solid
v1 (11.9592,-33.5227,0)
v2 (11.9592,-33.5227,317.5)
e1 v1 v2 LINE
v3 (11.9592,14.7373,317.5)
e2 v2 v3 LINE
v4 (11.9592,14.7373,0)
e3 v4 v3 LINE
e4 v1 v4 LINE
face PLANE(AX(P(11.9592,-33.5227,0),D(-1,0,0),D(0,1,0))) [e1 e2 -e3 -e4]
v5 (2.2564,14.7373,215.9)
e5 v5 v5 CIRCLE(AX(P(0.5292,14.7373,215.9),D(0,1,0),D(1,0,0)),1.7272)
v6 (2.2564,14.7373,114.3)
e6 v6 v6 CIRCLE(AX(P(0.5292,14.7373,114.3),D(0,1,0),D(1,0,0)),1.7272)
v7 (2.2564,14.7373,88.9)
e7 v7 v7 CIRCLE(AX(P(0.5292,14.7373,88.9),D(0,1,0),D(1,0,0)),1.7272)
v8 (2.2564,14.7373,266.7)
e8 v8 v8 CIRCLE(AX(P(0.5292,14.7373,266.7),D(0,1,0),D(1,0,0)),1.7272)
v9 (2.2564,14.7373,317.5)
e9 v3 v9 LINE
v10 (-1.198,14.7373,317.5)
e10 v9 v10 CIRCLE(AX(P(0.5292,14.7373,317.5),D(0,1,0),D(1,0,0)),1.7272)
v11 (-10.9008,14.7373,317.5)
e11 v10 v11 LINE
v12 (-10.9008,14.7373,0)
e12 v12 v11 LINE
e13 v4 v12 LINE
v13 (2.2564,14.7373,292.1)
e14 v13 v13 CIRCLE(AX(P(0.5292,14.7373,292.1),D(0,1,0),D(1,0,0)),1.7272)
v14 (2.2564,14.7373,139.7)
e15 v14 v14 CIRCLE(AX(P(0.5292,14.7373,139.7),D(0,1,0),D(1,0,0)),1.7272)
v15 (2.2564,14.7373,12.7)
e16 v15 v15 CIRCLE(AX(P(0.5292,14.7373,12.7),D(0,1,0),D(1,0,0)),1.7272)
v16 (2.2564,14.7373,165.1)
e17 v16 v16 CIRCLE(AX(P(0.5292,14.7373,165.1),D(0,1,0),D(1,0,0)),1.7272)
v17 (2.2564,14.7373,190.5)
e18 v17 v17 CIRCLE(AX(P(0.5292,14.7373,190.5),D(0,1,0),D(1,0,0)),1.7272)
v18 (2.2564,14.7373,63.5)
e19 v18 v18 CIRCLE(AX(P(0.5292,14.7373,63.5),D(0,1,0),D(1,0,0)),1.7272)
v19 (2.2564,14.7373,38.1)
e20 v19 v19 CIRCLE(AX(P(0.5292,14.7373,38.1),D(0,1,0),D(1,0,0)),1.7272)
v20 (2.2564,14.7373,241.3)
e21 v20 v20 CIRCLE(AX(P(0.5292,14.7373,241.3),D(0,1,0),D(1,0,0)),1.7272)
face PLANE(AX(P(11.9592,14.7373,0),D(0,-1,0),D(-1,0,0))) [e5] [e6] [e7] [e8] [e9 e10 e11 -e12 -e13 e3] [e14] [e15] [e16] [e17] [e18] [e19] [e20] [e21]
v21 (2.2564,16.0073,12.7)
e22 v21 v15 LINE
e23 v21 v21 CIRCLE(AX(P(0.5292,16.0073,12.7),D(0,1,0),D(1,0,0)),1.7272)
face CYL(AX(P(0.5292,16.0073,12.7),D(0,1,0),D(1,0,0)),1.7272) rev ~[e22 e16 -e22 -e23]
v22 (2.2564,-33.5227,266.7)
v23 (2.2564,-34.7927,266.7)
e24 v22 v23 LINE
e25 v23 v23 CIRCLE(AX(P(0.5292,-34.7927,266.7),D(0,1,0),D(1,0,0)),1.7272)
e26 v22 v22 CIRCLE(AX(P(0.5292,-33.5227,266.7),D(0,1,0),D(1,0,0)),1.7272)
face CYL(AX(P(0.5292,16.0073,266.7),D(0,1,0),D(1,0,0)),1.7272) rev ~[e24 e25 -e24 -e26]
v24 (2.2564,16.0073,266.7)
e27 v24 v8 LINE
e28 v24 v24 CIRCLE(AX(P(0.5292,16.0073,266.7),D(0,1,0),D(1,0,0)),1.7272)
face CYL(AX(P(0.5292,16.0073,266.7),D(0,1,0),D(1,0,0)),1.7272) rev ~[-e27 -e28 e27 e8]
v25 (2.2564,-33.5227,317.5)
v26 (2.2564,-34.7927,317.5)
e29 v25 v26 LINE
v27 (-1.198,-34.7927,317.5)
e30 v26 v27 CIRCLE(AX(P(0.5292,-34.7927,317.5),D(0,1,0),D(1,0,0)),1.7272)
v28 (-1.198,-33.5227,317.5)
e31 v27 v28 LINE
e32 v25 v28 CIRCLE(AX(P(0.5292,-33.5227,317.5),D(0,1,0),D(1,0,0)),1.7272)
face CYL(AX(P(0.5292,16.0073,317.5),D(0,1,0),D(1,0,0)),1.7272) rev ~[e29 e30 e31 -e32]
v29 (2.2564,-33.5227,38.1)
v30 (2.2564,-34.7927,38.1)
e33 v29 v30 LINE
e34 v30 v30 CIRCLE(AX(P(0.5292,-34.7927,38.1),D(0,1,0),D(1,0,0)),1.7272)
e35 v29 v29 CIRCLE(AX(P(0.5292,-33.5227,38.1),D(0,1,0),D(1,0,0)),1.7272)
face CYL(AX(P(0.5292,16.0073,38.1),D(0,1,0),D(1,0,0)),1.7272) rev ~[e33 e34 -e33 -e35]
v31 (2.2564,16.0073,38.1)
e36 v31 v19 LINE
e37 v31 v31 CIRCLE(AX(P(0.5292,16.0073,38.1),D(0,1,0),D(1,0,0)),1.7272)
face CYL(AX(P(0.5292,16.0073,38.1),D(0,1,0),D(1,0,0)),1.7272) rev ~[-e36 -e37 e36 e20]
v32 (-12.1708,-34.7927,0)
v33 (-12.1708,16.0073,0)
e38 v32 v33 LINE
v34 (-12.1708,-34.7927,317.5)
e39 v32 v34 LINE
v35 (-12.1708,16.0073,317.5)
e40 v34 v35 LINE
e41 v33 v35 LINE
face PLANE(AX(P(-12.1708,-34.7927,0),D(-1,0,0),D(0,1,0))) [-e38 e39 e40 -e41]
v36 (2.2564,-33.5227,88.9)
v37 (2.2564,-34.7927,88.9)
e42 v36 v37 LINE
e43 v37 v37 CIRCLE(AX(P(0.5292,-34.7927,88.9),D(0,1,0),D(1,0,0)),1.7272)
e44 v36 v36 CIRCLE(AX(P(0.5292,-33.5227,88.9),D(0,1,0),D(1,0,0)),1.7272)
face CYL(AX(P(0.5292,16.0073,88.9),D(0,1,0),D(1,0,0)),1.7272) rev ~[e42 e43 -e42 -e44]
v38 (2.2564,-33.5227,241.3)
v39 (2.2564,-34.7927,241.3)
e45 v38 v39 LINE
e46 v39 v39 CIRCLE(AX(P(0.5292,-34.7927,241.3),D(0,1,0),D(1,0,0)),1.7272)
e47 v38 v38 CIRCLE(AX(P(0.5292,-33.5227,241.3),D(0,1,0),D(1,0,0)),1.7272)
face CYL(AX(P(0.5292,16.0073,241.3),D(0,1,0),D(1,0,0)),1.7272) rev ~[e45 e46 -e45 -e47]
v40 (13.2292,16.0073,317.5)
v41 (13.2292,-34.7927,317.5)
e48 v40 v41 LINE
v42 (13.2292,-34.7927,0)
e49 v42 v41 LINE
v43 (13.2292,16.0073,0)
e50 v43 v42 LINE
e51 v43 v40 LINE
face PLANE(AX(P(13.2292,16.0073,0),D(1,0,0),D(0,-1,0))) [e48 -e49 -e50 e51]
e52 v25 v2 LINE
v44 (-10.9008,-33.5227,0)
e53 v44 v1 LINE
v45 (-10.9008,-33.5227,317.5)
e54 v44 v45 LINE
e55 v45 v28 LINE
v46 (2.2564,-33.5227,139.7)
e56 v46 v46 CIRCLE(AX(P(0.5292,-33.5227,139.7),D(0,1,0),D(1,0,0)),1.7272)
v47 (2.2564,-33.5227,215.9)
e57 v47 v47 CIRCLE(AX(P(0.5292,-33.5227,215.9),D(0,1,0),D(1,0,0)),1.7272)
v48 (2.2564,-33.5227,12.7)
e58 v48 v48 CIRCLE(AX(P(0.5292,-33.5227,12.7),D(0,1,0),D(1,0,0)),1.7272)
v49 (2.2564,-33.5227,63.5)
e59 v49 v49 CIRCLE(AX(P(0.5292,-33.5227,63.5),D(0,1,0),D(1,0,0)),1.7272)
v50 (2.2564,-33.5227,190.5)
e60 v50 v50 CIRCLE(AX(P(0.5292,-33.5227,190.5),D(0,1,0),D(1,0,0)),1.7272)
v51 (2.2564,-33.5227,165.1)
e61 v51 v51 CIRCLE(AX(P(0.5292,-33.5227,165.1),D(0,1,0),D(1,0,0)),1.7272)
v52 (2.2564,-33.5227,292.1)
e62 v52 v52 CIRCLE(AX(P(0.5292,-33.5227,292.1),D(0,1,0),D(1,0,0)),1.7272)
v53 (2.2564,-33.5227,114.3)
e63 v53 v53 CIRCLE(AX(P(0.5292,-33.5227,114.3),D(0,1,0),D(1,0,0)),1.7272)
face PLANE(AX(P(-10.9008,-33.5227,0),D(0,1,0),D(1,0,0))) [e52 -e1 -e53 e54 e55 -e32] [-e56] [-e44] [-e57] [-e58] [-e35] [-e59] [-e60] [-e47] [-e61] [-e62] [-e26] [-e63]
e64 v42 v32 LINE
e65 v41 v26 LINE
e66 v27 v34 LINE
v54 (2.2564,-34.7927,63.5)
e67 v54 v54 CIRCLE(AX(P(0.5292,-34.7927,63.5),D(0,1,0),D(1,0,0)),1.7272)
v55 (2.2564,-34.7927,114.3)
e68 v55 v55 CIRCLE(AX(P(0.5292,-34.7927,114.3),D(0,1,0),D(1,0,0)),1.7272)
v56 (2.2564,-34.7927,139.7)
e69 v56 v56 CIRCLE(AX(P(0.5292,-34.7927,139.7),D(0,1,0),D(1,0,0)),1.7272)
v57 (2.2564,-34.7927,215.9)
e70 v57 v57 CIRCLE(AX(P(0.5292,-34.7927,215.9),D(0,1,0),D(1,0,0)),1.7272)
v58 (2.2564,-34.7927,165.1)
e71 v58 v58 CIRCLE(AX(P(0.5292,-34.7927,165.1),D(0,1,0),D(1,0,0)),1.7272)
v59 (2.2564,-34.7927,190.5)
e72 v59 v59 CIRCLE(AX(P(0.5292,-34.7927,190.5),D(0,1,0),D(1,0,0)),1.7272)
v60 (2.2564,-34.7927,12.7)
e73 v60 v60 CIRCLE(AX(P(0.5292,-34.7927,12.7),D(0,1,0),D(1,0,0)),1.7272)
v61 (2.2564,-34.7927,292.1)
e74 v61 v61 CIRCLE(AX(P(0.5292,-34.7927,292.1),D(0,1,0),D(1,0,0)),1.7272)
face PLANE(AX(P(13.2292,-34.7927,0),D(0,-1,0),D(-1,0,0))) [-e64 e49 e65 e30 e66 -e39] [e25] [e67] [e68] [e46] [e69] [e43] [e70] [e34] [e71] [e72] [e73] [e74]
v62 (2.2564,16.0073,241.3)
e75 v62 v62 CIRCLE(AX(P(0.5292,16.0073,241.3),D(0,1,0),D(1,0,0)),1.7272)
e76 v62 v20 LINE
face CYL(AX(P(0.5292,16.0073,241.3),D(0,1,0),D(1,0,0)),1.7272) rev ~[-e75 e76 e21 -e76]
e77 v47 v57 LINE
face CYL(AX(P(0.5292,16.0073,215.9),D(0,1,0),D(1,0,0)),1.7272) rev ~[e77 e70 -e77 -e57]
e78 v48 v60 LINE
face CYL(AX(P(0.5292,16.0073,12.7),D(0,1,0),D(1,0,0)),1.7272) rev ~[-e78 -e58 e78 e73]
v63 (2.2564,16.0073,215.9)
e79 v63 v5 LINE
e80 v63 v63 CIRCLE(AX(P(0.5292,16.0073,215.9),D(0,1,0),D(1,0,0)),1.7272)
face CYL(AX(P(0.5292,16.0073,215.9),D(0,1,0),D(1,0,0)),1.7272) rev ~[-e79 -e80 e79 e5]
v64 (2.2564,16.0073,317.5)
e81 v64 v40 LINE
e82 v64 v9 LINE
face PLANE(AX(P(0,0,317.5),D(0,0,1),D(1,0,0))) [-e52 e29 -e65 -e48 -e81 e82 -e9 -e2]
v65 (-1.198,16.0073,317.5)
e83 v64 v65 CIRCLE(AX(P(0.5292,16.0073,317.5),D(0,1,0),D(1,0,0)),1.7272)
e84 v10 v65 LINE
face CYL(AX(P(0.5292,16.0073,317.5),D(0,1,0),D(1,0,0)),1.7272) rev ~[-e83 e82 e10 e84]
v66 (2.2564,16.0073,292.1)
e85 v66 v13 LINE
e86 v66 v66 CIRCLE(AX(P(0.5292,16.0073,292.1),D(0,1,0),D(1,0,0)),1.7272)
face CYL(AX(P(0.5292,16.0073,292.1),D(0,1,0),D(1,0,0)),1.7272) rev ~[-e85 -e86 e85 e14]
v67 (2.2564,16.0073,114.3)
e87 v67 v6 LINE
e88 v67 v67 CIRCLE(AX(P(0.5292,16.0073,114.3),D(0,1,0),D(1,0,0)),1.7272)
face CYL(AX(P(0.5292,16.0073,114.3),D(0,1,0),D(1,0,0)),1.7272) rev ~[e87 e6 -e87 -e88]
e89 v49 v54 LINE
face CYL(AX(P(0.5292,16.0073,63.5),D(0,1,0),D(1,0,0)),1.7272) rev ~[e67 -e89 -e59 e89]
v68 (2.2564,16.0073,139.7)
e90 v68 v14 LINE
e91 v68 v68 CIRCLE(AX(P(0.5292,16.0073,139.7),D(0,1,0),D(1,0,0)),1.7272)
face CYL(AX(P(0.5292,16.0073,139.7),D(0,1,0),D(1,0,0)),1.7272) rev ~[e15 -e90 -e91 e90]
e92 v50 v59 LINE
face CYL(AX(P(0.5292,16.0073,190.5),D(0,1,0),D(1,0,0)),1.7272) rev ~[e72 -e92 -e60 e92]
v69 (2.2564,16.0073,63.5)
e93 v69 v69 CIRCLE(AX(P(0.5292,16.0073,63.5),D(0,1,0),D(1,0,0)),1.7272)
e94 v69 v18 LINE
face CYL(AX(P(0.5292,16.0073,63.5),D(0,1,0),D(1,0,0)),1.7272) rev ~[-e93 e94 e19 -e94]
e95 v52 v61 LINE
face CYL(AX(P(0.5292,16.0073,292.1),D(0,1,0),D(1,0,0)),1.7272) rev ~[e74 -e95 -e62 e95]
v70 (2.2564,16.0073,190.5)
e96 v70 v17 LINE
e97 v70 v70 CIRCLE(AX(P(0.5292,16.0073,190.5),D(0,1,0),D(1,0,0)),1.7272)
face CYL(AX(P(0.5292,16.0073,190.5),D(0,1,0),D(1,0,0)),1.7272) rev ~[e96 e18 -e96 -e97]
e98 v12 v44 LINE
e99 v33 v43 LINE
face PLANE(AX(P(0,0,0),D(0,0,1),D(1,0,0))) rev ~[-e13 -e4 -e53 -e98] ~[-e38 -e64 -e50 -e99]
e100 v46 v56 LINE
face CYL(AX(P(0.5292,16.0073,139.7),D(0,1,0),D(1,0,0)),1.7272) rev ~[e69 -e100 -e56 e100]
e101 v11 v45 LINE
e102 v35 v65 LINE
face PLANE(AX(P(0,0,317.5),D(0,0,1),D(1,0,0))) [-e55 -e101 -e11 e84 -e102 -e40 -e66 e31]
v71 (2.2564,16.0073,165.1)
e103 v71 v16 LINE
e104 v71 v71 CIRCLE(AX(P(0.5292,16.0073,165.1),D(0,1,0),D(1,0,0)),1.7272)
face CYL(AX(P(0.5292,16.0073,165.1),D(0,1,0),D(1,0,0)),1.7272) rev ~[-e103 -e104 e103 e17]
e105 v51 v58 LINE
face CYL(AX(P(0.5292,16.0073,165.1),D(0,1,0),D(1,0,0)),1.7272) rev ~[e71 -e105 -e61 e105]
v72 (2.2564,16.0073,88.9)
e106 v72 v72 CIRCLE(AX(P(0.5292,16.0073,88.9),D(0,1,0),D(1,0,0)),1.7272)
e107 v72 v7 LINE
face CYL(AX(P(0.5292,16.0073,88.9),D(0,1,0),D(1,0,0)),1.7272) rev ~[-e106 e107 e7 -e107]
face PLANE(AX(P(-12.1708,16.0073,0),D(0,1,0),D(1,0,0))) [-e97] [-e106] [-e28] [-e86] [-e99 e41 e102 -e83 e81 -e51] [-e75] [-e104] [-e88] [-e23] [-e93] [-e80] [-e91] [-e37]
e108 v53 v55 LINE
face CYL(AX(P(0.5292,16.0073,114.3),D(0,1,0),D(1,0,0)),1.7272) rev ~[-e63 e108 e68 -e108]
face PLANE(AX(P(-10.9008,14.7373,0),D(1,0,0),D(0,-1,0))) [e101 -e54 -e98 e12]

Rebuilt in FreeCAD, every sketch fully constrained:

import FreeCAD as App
import Part
import Sketcher

V = App.Vector
Q = App.Units.Quantity


def add_polygon(sketch, points):
    """Adds a closed chain of lines whose ends are joined by coincident constraints."""
    first, n = sketch.GeometryCount, len(points)
    for a, b in zip(points, points[1:] + points[:1]):
        sketch.addGeometry(Part.LineSegment(App.Vector(*a, 0), App.Vector(*b, 0)), False)
    for i in range(n):
        sketch.addConstraint(Sketcher.Constraint("Coincident", first + i, 2, first + (i + 1) % n, 1))

doc = App.newDocument("Part")
body = doc.addObject("PartDesign::Body", "Body")

sketch1 = body.newObject("Sketcher::SketchObject", "Sketch")
sketch1.AttachmentSupport = (doc.getObject("XY_Plane"), [""])
sketch1.MapMode = "FlatFace"
add_polygon(sketch1, [(13, 16), (-12, 16), (-12, -35), (13, -35)])
add_polygon(sketch1, [(-11, 15), (12, 15), (12, -34), (-11, -34)])
sketch1.addConstraint([
    Sketcher.Constraint("Horizontal", 0),
    Sketcher.Constraint("Vertical", 1),
    Sketcher.Constraint("Horizontal", 2),
    Sketcher.Constraint("Vertical", 3),
    Sketcher.Constraint("Horizontal", 4),
    Sketcher.Constraint("Vertical", 5),
    Sketcher.Constraint("Horizontal", 6),
    Sketcher.Constraint("Vertical", 7),
    Sketcher.Constraint("DistanceX", 0, 2, 0, 1, Q("1 in")),
    Sketcher.Constraint("DistanceY", 1, 2, 1, 1, Q("2 in")),
    Sketcher.Constraint("DistanceX", 4, 2, 3, 2, Q("0.05 in")),
    Sketcher.Constraint("DistanceY", 4, 2, 3, 2, Q("0.05 in")),
    Sketcher.Constraint("DistanceY", 2, 2, 5, 2, Q("0.05 in")),
    Sketcher.Constraint("DistanceX", 1, 2, 6, 2, Q("0.05 in")),
    Sketcher.Constraint("DistanceY", -1, 1, 0, 2, Q("0.6302 in")),
    Sketcher.Constraint("DistanceX", 0, 2, -1, 1, 12.1708),
])
pad1 = body.newObject("PartDesign::Pad", "Pad")
pad1.Profile = sketch1
pad1.Length = Q("12.5 in")

sketch2 = body.newObject("Sketcher::SketchObject", "Sketch001")
sketch2.AttachmentSupport = (doc.getObject("XZ_Plane"), [""])
sketch2.MapMode = "FlatFace"
sketch2.AttachmentOffset = App.Placement(V(0, 0, -0.6302087 * 25.4), App.Rotation())
sketch2.addGeometry(Part.Circle(V(0.5, 12.7, 0), V(0, 0, 1), 1.7), False)
sketch2.addConstraint([
    Sketcher.Constraint("Diameter", 0, Q("0.136 in")),
    Sketcher.Constraint("DistanceY", -1, 1, 0, 3, Q("0.5 in")),
    Sketcher.Constraint("DistanceX", -1, 1, 0, 3, 0.5292),
])
pocket1 = body.newObject("PartDesign::Pocket", "Pocket")
pocket1.Profile = sketch2
pocket1.Type = "ThroughAll"
pocket1.Reversed = True
doc.recompute()

linearpattern = body.newObject("PartDesign::LinearPattern", "LinearPattern")
linearpattern.Originals = [pocket1]
linearpattern.Direction = (doc.getObject("Z_Axis"), [""])
linearpattern.Mode = "offset"
linearpattern.Offset = Q("1 in")
linearpattern.Occurrences = 32
body.Tip = linearpattern

doc.recompute()
